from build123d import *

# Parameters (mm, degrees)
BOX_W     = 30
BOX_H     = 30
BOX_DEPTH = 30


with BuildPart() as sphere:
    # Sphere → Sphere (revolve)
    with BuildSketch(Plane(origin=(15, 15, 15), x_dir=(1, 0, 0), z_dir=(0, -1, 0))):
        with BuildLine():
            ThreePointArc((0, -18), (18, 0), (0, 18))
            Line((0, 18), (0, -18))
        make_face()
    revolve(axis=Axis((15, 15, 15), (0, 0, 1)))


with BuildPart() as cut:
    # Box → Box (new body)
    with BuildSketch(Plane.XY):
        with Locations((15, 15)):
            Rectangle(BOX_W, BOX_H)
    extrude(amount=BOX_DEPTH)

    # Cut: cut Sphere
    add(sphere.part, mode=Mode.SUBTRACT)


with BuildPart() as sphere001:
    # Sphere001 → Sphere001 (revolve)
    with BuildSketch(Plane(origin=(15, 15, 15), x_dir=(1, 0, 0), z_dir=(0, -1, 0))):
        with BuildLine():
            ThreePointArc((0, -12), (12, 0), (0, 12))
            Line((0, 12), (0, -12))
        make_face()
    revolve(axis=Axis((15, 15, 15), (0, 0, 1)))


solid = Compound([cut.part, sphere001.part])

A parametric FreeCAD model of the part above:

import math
import FreeCAD as App
import Part
import Sketcher
from FreeCAD import Vector

doc = App.newDocument("Part")
body = doc.addObject("PartDesign::Body", "Body")

# Sketch on XZ plane
sketch1 = body.newObject("Sketcher::SketchObject", "Sketch")
sketch1.AttachmentSupport = (doc.getObject("XZ_Plane"), [""])
sketch1.MapMode = "FlatFace"
sketch1.AttachmentOffset = App.Placement(Vector(0, 0, -15), App.Rotation())
sketch1.addGeometry([
    Part.ArcOfCircle(Part.Circle(Vector(15, 15, 0), Vector(0, 0, 1), 18), math.radians(-90), math.radians(90)),
    Part.LineSegment(Vector(15, 33, 0), Vector(15, -3, 0)),
], False)
sketch1.addGeometry(Part.LineSegment(Vector(15, -3, 0), Vector(15, 33, 0)), True)  # axis
sketch1.addConstraint([
    Sketcher.Constraint("Coincident", 0, 1, 1, 2),
    Sketcher.Constraint("Coincident", 1, 1, 0, 2),
    Sketcher.Constraint("Vertical", 1),
    Sketcher.Constraint("Vertical", 2),
    Sketcher.Constraint("Coincident", 2, 1, 0, 1),
    Sketcher.Constraint("Equal", 1, 2),
    Sketcher.Constraint("Radius", 0, 18.0),
    Sketcher.Constraint("DistanceX", -1, 1, 0, 3, 15.0),
    Sketcher.Constraint("DistanceY", -1, 1, 0, 3, 15.0),
    Sketcher.Constraint("DistanceX", -1, 1, 0, 1, 15.0),
])
revolution = body.newObject("PartDesign::Revolution", "Revolution")
revolution.Profile = sketch1
revolution.ReferenceAxis = (sketch1, ["Axis0"])
revolution.Angle = 360
body2 = doc.addObject("PartDesign::Body", "Body001")

# Sketch on XY plane
sketch2 = body2.newObject("Sketcher::SketchObject", "Sketch001")
sketch2.AttachmentSupport = (doc.getObject("XY_Plane001"), [""])
sketch2.MapMode = "FlatFace"
sketch2.addGeometry([
    Part.LineSegment(Vector(0, 30, 0), Vector(0, 0, 0)),
    Part.LineSegment(Vector(0, 0, 0), Vector(30, 0, 0)),
    Part.LineSegment(Vector(30, 0, 0), Vector(30, 30, 0)),
    Part.LineSegment(Vector(30, 30, 0), Vector(0, 30, 0)),
], False)
sketch2.addConstraint([
    Sketcher.Constraint("Coincident", 0, 2, 1, 1),
    Sketcher.Constraint("Coincident", 1, 2, 2, 1),
    Sketcher.Constraint("Coincident", 2, 2, 3, 1),
    Sketcher.Constraint("Coincident", 3, 2, 0, 1),
    Sketcher.Constraint("Vertical", 0),
    Sketcher.Constraint("Horizontal", 1),
    Sketcher.Constraint("Vertical", 2),
    Sketcher.Constraint("Horizontal", 3),
    Sketcher.Constraint("Coincident", 0, 2, -1, 1),
    Sketcher.Constraint("Equal", 3, 0),
    Sketcher.Constraint("DistanceX", 1, 1, 1, 2, 30.0),
])
pad1 = body2.newObject("PartDesign::Pad", "Pad")
pad1.Profile = sketch2
pad1.Length = 30
doc.recompute()

boolean = body2.newObject("PartDesign::Boolean", "Boolean")
boolean.Type = "Cut"
boolean.addObjects([body])
body3 = doc.addObject("PartDesign::Body", "Body002")

# Sketch on XZ plane
sketch3 = body3.newObject("Sketcher::SketchObject", "Sketch002")
sketch3.AttachmentSupport = (doc.getObject("XZ_Plane002"), [""])
sketch3.MapMode = "FlatFace"
sketch3.AttachmentOffset = App.Placement(Vector(0, 0, -15), App.Rotation())
sketch3.addGeometry([
    Part.ArcOfCircle(Part.Circle(Vector(15, 15, 0), Vector(0, 0, 1), 12), math.radians(-90), math.radians(90)),
    Part.LineSegment(Vector(15, 27, 0), Vector(15, 3, 0)),
], False)
sketch3.addGeometry(Part.LineSegment(Vector(15, 3, 0), Vector(15, 27, 0)), True)  # axis
sketch3.addConstraint([
    Sketcher.Constraint("Coincident", 0, 1, 1, 2),
    Sketcher.Constraint("Coincident", 1, 1, 0, 2),
    Sketcher.Constraint("Vertical", 1),
    Sketcher.Constraint("Vertical", 2),
    Sketcher.Constraint("Coincident", 2, 1, 0, 1),
    Sketcher.Constraint("Equal", 1, 2),
    Sketcher.Constraint("Radius", 0, 12.0),
    Sketcher.Constraint("DistanceX", -1, 1, 0, 3, 15.0),
    Sketcher.Constraint("DistanceY", -1, 1, 0, 3, 15.0),
    Sketcher.Constraint("DistanceX", -1, 1, 0, 1, 15.0),
])
revolution2 = body3.newObject("PartDesign::Revolution", "Revolution001")
revolution2.Profile = sketch3
revolution2.ReferenceAxis = (sketch3, ["Axis0"])
revolution2.Angle = 360

doc.recompute()
